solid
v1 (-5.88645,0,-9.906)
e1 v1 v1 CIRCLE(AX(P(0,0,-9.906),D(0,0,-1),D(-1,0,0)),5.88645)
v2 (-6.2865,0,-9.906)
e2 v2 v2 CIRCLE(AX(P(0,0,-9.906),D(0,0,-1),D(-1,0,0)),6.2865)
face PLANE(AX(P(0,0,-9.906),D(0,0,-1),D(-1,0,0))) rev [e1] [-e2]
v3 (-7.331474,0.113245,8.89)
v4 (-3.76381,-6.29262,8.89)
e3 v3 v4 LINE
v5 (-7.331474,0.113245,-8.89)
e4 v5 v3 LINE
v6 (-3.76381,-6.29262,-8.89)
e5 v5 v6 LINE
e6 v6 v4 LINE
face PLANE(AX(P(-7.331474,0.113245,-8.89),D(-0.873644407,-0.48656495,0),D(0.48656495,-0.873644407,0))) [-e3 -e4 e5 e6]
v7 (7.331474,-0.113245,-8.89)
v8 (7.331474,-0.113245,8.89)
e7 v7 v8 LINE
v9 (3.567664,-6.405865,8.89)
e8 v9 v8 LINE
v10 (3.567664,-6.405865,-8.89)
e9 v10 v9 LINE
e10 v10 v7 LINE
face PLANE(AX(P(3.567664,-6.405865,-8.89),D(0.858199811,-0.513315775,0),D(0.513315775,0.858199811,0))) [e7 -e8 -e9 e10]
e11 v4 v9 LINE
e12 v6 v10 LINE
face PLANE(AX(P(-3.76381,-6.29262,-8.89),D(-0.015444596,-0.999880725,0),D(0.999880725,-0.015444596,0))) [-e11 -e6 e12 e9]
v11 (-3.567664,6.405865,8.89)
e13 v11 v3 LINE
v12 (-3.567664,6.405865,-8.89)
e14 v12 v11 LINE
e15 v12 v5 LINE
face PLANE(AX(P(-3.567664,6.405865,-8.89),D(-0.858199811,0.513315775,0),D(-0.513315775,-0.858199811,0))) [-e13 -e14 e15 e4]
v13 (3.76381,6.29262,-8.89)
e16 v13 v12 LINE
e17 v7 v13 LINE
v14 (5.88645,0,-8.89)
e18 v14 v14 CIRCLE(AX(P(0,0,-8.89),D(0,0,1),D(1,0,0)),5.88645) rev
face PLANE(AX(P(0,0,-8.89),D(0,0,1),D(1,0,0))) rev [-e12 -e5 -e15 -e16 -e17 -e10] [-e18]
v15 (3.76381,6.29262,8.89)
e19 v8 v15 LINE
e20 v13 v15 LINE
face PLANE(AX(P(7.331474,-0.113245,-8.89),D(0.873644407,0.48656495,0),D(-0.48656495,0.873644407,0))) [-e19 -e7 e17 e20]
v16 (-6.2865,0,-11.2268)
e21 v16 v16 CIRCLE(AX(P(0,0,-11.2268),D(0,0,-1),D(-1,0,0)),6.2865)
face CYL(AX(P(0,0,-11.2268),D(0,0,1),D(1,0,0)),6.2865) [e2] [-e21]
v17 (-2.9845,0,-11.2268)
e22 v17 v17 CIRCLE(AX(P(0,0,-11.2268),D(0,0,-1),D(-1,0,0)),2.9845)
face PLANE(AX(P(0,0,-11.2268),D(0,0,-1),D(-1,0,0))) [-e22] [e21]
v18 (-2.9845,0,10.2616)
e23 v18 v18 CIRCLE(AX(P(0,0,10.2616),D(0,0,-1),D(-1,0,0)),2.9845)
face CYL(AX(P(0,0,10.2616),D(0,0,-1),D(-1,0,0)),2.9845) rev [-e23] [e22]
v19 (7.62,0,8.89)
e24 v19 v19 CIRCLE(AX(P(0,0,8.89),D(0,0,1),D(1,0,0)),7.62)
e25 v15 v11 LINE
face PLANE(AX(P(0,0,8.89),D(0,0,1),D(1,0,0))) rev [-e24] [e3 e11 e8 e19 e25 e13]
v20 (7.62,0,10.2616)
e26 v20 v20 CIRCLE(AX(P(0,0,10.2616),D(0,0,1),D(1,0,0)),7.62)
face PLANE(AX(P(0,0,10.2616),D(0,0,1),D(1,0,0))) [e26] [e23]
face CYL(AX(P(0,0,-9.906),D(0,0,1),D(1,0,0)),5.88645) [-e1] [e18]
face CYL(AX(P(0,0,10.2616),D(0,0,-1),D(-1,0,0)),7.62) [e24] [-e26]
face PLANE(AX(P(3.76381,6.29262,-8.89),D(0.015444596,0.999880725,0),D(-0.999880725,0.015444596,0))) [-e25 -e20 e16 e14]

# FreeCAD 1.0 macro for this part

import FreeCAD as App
import Part
import Sketcher
Q = App.Units.Quantity

doc = App.newDocument("Part")
body = doc.addObject("PartDesign::Body", "Body")

# Sketch on XY plane
sketch1 = body.newObject("Sketcher::SketchObject", "Sketch")
sketch1.AttachmentSupport = (doc.getObject("XY_Plane"), [""])
sketch1.MapMode = "FlatFace"
sketch1.addGeometry(Part.LineSegment(App.Vector(4, 6, 0), App.Vector(-4, 6, 0)), False)
sketch1.addGeometry(Part.LineSegment(App.Vector(-4, 6, 0), App.Vector(-7, 0, 0)), False)
sketch1.addGeometry(Part.LineSegment(App.Vector(-7, 0, 0), App.Vector(-4, -6, 0)), False)
sketch1.addGeometry(Part.LineSegment(App.Vector(-4, -6, 0), App.Vector(4, -6, 0)), False)
sketch1.addGeometry(Part.LineSegment(App.Vector(4, -6, 0), App.Vector(7, 0, 0)), False)
sketch1.addGeometry(Part.LineSegment(App.Vector(7, 0, 0), App.Vector(4, 6, 0)), False)
sketch1.addConstraint(Sketcher.Constraint("Coincident", 0, 2, 1, 1))
sketch1.addConstraint(Sketcher.Constraint("Coincident", 1, 2, 2, 1))
sketch1.addConstraint(Sketcher.Constraint("Coincident", 2, 2, 3, 1))
sketch1.addConstraint(Sketcher.Constraint("Coincident", 3, 2, 4, 1))
sketch1.addConstraint(Sketcher.Constraint("Coincident", 4, 2, 5, 1))
sketch1.addConstraint(Sketcher.Constraint("Coincident", 5, 2, 0, 1))
sketch1.addConstraint(Sketcher.Constraint("Symmetric", 0, 2, 3, 2, -1, 1))
sketch1.addConstraint(Sketcher.Constraint("Symmetric", 1, 2, 4, 2, -1, 1))
sketch1.addConstraint(Sketcher.Constraint("Symmetric", 2, 2, 5, 2, -1, 1))
sketch1.addConstraint(Sketcher.Constraint("Equal", 0, 1))
sketch1.addConstraint(Sketcher.Constraint("Equal", 1, 2))
sketch1.addConstraint(Sketcher.Constraint("DistanceX", 1, 2, 3, 2, Q("0.4290999 in")))
sketch1.addConstraint(Sketcher.Constraint("Distance", 0, Q("7.332348 mm")))
sketch1.addConstraint(Sketcher.Constraint("DistanceX", 2, 2, -1, 1, Q("3.76381 mm")))
sketch1.addConstraint(Sketcher.Constraint("DistanceY", 2, 2, -1, 1, Q("6.29262 mm")))
pad1 = body.newObject("PartDesign::Pad", "Pad")
pad1.Profile = sketch1
pad1.Type = "TwoLengths"
pad1.Length = Q("0.35 in")
pad1.Length2 = Q("0.35 in")

# Sketch on XY plane
sketch2 = body.newObject("Sketcher::SketchObject", "Sketch001")
sketch2.AttachmentSupport = (doc.getObject("XY_Plane"), [""])
sketch2.MapMode = "FlatFace"
sketch2.AttachmentOffset = App.Placement(App.Vector(0, 0, 0.35 * 25.4), App.Rotation())
sketch2.addGeometry(Part.Circle(App.Vector(0, 0, 0), App.Vector(0, 0, 1), 8), False)
sketch2.addConstraint(Sketcher.Constraint("Coincident", 0, 3, -1, 1))
sketch2.addConstraint(Sketcher.Constraint("Diameter", 0, Q("0.6 in")))
pad2 = body.newObject("PartDesign::Pad", "Pad001")
pad2.Profile = sketch2
pad2.Length = Q("0.054 in")

# Sketch on XY plane
sketch3 = body.newObject("Sketcher::SketchObject", "Sketch002")
sketch3.AttachmentSupport = (doc.getObject("XY_Plane"), [""])
sketch3.MapMode = "FlatFace"
sketch3.AttachmentOffset = App.Placement(App.Vector(0, 0, -0.35 * 25.4), App.Rotation())
sketch3.addGeometry(Part.Circle(App.Vector(0, 0, 0), App.Vector(0, 0, 1), 6), False)
sketch3.addConstraint(Sketcher.Constraint("Coincident", 0, 3, -1, 1))
sketch3.addConstraint(Sketcher.Constraint("Diameter", 0, Q("0.4635 in")))
pad3 = body.newObject("PartDesign::Pad", "Pad002")
pad3.Profile = sketch3
pad3.Length = Q("0.04 in")
pad3.Reversed = True

# Sketch on XY plane
sketch4 = body.newObject("Sketcher::SketchObject", "Sketch003")
sketch4.AttachmentSupport = (doc.getObject("XY_Plane"), [""])
sketch4.MapMode = "FlatFace"
sketch4.AttachmentOffset = App.Placement(App.Vector(0, 0, -0.39 * 25.4), App.Rotation())
sketch4.addGeometry(Part.Circle(App.Vector(0, 0, 0), App.Vector(0, 0, 1), 6), False)
sketch4.addConstraint(Sketcher.Constraint("Coincident", 0, 3, -1, 1))
sketch4.addConstraint(Sketcher.Constraint("Diameter", 0, Q("0.495 in")))
pad4 = body.newObject("PartDesign::Pad", "Pad003")
pad4.Profile = sketch4
pad4.Length = Q("0.052 in")
pad4.Reversed = True

# Sketch on XY plane
sketch5 = body.newObject("Sketcher::SketchObject", "Sketch004")
sketch5.AttachmentSupport = (doc.getObject("XY_Plane"), [""])
sketch5.MapMode = "FlatFace"
sketch5.AttachmentOffset = App.Placement(App.Vector(0, 0, -0.442 * 25.4), App.Rotation())
sketch5.addGeometry(Part.Circle(App.Vector(0, 0, 0), App.Vector(0, 0, 1), 3), False)
sketch5.addConstraint(Sketcher.Constraint("Coincident", 0, 3, -1, 1))
sketch5.addConstraint(Sketcher.Constraint("Diameter", 0, Q("0.235 in")))
pocket1 = body.newObject("PartDesign::Pocket", "Pocket")
pocket1.Profile = sketch5
pocket1.Type = "ThroughAll"
pocket1.Reversed = True

doc.recompute()
